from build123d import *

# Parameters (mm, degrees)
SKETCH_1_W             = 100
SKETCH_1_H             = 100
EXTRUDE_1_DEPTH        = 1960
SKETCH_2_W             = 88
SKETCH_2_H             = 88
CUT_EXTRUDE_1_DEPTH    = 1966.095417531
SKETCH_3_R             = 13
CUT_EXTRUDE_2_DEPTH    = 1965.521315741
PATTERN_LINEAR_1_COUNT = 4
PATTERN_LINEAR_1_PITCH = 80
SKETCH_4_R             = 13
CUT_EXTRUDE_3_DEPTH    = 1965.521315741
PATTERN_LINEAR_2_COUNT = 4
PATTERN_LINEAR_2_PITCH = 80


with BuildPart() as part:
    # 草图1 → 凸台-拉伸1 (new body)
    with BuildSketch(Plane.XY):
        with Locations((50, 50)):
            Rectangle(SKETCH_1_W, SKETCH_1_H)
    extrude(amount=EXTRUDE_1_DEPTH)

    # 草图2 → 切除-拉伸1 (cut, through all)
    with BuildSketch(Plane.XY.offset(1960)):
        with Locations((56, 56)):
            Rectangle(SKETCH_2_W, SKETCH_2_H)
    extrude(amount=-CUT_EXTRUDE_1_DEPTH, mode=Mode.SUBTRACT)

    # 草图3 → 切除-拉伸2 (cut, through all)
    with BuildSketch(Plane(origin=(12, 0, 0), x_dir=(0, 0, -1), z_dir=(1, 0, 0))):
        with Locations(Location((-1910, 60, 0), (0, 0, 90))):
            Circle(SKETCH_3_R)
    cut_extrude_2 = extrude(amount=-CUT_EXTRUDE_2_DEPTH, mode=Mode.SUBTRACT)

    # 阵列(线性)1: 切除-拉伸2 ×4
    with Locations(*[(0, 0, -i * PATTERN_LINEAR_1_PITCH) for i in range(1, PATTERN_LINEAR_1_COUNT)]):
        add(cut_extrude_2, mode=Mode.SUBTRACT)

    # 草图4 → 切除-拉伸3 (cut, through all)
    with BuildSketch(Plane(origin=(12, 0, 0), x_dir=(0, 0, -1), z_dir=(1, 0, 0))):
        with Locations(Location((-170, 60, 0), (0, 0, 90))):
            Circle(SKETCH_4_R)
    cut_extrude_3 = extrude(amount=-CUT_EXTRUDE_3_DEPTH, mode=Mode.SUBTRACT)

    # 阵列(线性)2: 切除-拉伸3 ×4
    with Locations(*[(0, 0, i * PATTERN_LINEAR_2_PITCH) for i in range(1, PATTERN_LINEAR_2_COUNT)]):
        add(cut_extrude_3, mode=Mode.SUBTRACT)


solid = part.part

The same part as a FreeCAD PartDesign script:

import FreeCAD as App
import Part
import Sketcher
from FreeCAD import Vector

doc = App.newDocument("Part")
params = doc.addObject("Spreadsheet::Sheet", "Params")
for row, (alias, value) in enumerate([
    ("sketch1_width", "100 mm"),
    ("pad1_length", "1960 mm"),
    ("sketch2_width", "88 mm"),
    ("sketch3_diameter", "26 mm"),
    ("linearpattern_pitch", "80 mm"),
    ("sketch4_diameter", "26 mm"),
    ("linearpattern2_pitch", "80 mm"),
], start=1):
    params.set(f"A{row}", alias)
    params.set(f"B{row}", "=" + value)
    params.setAlias(f"B{row}", alias)

body = doc.addObject("PartDesign::Body", "Body")

sketch1 = body.newObject("Sketcher::SketchObject", "Sketch")
sketch1.AttachmentSupport = (doc.getObject("XY_Plane"), [""])
sketch1.MapMode = "FlatFace"
sketch1.addGeometry(Part.LineSegment(Vector(0, 100, 0), Vector(0, 0, 0)), False)
sketch1.addGeometry(Part.LineSegment(Vector(0, 0, 0), Vector(100, 0, 0)), False)
sketch1.addGeometry(Part.LineSegment(Vector(100, 0, 0), Vector(100, 100, 0)), False)
sketch1.addGeometry(Part.LineSegment(Vector(100, 100, 0), Vector(0, 100, 0)), False)
sketch1.addConstraint(Sketcher.Constraint("Coincident", 0, 2, 1, 1))
sketch1.addConstraint(Sketcher.Constraint("Coincident", 1, 2, 2, 1))
sketch1.addConstraint(Sketcher.Constraint("Coincident", 2, 2, 3, 1))
sketch1.addConstraint(Sketcher.Constraint("Coincident", 3, 2, 0, 1))
sketch1.addConstraint(Sketcher.Constraint("Vertical", 0))
sketch1.addConstraint(Sketcher.Constraint("Horizontal", 1))
sketch1.addConstraint(Sketcher.Constraint("Vertical", 2))
sketch1.addConstraint(Sketcher.Constraint("Horizontal", 3))
sketch1.addConstraint(Sketcher.Constraint("Coincident", 0, 2, -1, 1))
sketch1.addConstraint(Sketcher.Constraint("Equal", 3, 0))
sketch1.addConstraint(Sketcher.Constraint("DistanceX", 1, 1, 1, 2, 100.0))
sketch1.setExpression("Constraints[10]", "Params.sketch1_width")
pad1 = body.newObject("PartDesign::Pad", "Pad")
pad1.Profile = sketch1
pad1.setExpression("Length", "Params.pad1_length")

sketch2 = body.newObject("Sketcher::SketchObject", "Sketch001")
sketch2.AttachmentSupport = (doc.getObject("XY_Plane"), [""])
sketch2.MapMode = "FlatFace"
sketch2.AttachmentOffset = App.Placement(Vector(0, 0, 1960), App.Rotation())
sketch2.addGeometry(Part.LineSegment(Vector(12, 100, 0), Vector(12, 12, 0)), False)
sketch2.addGeometry(Part.LineSegment(Vector(12, 12, 0), Vector(100, 12, 0)), False)
sketch2.addGeometry(Part.LineSegment(Vector(100, 12, 0), Vector(100, 100, 0)), False)
sketch2.addGeometry(Part.LineSegment(Vector(100, 100, 0), Vector(12, 100, 0)), False)
sketch2.addConstraint(Sketcher.Constraint("Coincident", 0, 2, 1, 1))
sketch2.addConstraint(Sketcher.Constraint("Coincident", 1, 2, 2, 1))
sketch2.addConstraint(Sketcher.Constraint("Coincident", 2, 2, 3, 1))
sketch2.addConstraint(Sketcher.Constraint("Coincident", 3, 2, 0, 1))
sketch2.addConstraint(Sketcher.Constraint("Vertical", 0))
sketch2.addConstraint(Sketcher.Constraint("Horizontal", 1))
sketch2.addConstraint(Sketcher.Constraint("Vertical", 2))
sketch2.addConstraint(Sketcher.Constraint("Horizontal", 3))
sketch2.addConstraint(Sketcher.Constraint("Equal", 3, 0))
sketch2.addConstraint(Sketcher.Constraint("DistanceX", 1, 1, 1, 2, 88.0))
sketch2.addConstraint(Sketcher.Constraint("DistanceX", -1, 1, 0, 2, 12.0))
sketch2.addConstraint(Sketcher.Constraint("DistanceY", -1, 1, 0, 2, 12.0))
sketch2.setExpression("Constraints[9]", "Params.sketch2_width")
pocket1 = body.newObject("PartDesign::Pocket", "Pocket")
pocket1.Profile = sketch2
pocket1.Type = "ThroughAll"

sketch3 = body.newObject("Sketcher::SketchObject", "Sketch002")
sketch3.AttachmentSupport = (doc.getObject("YZ_Plane"), [""])
sketch3.MapMode = "FlatFace"
sketch3.AttachmentOffset = App.Placement(Vector(0, 0, 12), App.Rotation())
sketch3.addGeometry(Part.Circle(Vector(60, 1910, 0), Vector(0, 0, 1), 13), False)
sketch3.addConstraint(Sketcher.Constraint("Diameter", 0, 26.0))
sketch3.addConstraint(Sketcher.Constraint("DistanceX", -1, 1, 0, 3, 60.0))
sketch3.addConstraint(Sketcher.Constraint("DistanceY", -1, 1, 0, 3, 1910.0))
sketch3.setExpression("Constraints[0]", "Params.sketch3_diameter")
pocket2 = body.newObject("PartDesign::Pocket", "Pocket001")
pocket2.Profile = sketch3
pocket2.Type = "ThroughAll"
doc.recompute()

linearpattern = body.newObject("PartDesign::LinearPattern", "LinearPattern")
linearpattern.Originals = [pocket2]
linearpattern.Direction = (doc.getObject("Z_Axis"), [""])
linearpattern.Mode = "offset"
linearpattern.setExpression("Offset", "Params.linearpattern_pitch")
linearpattern.Occurrences = 4
linearpattern.Reversed = True
body.Tip = linearpattern

sketch4 = body.newObject("Sketcher::SketchObject", "Sketch003")
sketch4.AttachmentSupport = (doc.getObject("YZ_Plane"), [""])
sketch4.MapMode = "FlatFace"
sketch4.AttachmentOffset = App.Placement(Vector(0, 0, 12), App.Rotation())
sketch4.addGeometry(Part.Circle(Vector(60, 170, 0), Vector(0, 0, 1), 13), False)
sketch4.addConstraint(Sketcher.Constraint("Diameter", 0, 26.0))
sketch4.addConstraint(Sketcher.Constraint("DistanceX", -1, 1, 0, 3, 60.0))
sketch4.addConstraint(Sketcher.Constraint("DistanceY", -1, 1, 0, 3, 170.0))
sketch4.setExpression("Constraints[0]", "Params.sketch4_diameter")
pocket3 = body.newObject("PartDesign::Pocket", "Pocket002")
pocket3.Profile = sketch4
pocket3.Type = "ThroughAll"
doc.recompute()

linearpattern2 = body.newObject("PartDesign::LinearPattern", "LinearPattern001")
linearpattern2.Originals = [pocket3]
linearpattern2.Direction = (doc.getObject("Z_Axis"), [""])
linearpattern2.Mode = "offset"
linearpattern2.setExpression("Offset", "Params.linearpattern2_pitch")
linearpattern2.Occurrences = 4
body.Tip = linearpattern2

doc.recompute()
